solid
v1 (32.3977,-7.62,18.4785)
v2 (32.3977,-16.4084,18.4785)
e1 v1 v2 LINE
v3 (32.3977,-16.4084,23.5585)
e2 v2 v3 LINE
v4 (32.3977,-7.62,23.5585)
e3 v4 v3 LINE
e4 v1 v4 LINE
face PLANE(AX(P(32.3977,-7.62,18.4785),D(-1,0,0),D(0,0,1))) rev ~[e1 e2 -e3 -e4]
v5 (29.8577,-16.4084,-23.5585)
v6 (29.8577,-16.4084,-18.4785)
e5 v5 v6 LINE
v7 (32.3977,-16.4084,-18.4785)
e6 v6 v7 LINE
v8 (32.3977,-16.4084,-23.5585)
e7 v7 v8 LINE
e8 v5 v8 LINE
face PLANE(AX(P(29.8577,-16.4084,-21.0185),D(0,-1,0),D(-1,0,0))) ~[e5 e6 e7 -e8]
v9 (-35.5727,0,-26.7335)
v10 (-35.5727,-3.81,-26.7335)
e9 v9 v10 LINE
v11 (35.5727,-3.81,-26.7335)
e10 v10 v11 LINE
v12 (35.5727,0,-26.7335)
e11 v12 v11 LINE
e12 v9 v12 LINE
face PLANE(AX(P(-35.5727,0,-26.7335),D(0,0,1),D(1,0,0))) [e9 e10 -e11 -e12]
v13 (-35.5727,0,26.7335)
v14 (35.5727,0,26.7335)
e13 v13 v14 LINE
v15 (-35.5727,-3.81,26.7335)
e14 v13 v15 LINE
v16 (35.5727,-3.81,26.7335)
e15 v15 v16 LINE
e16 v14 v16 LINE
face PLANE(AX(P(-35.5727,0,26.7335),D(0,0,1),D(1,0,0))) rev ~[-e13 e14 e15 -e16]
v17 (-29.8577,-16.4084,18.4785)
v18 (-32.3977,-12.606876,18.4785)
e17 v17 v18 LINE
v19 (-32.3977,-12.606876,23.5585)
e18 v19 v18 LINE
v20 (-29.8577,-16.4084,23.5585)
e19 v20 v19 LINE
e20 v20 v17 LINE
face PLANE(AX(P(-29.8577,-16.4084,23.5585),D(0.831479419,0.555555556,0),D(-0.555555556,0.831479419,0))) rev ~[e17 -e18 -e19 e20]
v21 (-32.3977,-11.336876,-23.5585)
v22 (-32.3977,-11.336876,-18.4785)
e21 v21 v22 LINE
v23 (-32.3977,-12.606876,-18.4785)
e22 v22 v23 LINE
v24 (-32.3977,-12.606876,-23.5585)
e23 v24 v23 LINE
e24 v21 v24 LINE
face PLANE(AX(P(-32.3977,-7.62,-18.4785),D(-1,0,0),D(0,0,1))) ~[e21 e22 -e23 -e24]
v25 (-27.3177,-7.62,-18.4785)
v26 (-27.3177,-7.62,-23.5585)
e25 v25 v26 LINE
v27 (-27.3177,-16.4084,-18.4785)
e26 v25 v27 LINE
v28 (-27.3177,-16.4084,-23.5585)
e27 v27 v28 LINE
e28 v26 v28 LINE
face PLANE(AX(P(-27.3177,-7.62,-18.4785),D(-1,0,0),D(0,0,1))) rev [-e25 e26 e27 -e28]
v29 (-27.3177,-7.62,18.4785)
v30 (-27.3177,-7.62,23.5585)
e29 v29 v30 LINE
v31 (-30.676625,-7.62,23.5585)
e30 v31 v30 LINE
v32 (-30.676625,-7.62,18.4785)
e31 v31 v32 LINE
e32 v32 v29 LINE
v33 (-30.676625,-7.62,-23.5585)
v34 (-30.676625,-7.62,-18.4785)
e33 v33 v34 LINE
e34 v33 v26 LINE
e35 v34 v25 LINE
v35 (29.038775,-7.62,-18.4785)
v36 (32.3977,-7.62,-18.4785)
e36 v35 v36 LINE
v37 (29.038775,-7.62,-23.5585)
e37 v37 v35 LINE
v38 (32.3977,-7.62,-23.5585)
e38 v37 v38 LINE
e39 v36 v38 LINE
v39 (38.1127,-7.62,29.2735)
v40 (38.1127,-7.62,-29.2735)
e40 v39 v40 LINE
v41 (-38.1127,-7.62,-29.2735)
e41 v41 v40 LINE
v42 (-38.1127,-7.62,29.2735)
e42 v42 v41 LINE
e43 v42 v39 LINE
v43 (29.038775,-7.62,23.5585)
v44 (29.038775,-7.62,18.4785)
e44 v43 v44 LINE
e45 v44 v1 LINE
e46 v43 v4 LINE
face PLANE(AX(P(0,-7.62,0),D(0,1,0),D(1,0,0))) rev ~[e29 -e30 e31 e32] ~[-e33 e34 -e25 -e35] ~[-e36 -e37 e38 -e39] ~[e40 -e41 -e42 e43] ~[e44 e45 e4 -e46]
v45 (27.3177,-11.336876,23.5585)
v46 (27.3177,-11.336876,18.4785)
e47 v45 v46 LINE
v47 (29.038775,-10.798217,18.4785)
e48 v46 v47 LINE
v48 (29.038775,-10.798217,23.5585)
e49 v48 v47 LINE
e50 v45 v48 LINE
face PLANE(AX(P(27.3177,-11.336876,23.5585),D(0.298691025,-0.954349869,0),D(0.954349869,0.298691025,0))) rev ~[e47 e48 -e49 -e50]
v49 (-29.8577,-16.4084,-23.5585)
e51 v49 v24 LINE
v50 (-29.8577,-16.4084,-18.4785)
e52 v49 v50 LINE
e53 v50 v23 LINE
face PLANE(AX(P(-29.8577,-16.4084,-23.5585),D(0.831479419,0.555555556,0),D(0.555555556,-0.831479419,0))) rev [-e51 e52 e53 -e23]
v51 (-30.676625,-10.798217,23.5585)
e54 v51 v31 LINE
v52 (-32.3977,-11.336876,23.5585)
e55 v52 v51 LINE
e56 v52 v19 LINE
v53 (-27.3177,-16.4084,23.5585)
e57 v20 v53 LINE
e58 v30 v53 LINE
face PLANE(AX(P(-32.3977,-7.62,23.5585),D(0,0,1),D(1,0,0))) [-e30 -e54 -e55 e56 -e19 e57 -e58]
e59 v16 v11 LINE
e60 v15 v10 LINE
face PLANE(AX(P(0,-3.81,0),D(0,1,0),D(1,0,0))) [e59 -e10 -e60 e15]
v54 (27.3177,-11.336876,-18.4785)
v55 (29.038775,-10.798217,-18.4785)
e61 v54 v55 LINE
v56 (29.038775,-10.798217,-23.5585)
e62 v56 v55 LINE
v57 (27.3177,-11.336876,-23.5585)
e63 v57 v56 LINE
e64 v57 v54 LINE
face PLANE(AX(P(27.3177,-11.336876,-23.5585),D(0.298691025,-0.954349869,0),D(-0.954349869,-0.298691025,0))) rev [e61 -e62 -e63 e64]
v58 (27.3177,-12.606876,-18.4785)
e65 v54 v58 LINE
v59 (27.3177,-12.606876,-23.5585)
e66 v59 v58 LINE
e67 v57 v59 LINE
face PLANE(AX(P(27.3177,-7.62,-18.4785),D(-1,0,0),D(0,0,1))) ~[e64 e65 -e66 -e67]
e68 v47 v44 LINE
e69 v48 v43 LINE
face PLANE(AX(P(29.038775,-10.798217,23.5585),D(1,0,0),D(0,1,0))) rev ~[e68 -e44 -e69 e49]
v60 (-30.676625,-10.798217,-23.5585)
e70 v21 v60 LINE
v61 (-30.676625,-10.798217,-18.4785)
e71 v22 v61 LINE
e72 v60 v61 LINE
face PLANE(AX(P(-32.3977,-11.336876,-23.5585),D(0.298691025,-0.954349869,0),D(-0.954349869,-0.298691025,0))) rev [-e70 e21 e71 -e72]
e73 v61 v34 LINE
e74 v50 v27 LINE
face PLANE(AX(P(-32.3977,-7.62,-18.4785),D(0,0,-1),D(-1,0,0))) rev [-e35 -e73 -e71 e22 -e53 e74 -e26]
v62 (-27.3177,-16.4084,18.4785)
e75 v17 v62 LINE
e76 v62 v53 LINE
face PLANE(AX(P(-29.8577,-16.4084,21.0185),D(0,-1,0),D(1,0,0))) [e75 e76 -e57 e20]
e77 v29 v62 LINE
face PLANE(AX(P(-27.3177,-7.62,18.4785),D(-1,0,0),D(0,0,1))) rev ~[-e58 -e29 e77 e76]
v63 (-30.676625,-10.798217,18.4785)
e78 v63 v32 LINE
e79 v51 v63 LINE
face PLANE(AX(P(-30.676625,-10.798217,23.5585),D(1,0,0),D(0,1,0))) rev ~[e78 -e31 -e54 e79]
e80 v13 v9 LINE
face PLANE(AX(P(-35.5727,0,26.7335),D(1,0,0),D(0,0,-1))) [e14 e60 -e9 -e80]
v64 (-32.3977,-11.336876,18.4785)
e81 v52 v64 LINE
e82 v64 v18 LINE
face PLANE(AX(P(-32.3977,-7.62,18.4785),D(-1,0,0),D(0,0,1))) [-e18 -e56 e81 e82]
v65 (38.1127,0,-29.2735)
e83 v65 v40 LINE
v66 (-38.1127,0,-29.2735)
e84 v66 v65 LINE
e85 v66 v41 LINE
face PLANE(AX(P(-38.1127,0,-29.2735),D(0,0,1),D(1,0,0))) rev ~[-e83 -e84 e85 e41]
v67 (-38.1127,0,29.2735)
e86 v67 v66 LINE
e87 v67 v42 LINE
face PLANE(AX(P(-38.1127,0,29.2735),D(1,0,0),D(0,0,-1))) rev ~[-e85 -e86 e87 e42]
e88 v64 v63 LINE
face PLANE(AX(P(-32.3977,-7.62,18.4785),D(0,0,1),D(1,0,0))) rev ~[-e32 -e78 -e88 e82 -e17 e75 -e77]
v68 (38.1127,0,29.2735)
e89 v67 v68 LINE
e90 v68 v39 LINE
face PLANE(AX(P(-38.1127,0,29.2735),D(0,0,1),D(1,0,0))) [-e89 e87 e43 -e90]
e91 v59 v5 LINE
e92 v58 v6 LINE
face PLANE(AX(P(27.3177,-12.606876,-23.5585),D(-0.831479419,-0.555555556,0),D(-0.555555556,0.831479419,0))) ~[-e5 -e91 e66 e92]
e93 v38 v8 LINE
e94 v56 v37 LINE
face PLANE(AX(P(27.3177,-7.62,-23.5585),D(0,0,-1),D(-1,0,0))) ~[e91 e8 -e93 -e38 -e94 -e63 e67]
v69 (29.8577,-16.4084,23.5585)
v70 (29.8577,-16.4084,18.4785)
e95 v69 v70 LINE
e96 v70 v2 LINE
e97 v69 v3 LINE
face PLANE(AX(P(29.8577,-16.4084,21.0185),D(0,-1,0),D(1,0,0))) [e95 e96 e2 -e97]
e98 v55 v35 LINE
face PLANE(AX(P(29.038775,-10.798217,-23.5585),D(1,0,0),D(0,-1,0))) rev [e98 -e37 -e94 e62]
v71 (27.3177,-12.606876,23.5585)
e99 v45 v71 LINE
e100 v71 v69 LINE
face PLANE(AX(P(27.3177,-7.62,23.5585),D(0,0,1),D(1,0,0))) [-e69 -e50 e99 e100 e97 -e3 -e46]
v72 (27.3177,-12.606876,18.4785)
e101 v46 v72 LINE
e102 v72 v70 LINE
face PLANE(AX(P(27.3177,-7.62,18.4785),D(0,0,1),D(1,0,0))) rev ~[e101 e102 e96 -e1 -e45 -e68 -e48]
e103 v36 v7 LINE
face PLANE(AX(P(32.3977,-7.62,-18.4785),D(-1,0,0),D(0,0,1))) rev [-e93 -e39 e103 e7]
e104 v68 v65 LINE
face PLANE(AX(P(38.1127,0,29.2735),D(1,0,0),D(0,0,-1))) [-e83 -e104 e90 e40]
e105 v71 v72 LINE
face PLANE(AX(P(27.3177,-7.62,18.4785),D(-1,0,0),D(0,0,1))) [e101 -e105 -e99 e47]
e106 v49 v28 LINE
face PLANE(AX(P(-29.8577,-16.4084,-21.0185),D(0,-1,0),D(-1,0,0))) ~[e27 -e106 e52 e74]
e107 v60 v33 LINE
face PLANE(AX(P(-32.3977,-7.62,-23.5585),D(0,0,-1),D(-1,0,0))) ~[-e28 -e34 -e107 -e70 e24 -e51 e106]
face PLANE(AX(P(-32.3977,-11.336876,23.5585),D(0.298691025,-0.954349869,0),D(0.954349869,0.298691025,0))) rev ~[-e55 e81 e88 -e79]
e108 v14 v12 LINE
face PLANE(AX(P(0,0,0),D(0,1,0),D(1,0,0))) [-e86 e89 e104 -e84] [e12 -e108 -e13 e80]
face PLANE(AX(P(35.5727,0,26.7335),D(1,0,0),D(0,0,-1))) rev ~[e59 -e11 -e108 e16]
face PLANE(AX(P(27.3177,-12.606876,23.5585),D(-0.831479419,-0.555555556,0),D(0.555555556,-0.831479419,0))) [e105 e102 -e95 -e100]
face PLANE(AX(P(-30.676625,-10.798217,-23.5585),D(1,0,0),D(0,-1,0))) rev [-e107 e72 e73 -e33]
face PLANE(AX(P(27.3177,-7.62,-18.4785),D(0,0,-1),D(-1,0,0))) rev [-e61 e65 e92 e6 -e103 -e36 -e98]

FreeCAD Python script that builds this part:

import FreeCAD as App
import Part
import Sketcher
from FreeCAD import Vector
Q = App.Units.Quantity


def add_polygon(sketch, points):
    """Adds a closed chain of lines whose ends are joined by coincident constraints."""
    first, n = sketch.GeometryCount, len(points)
    for a, b in zip(points, points[1:] + points[:1]):
        sketch.addGeometry(Part.LineSegment(App.Vector(*a, 0), App.Vector(*b, 0)), False)
    for i in range(n):
        sketch.addConstraint(Sketcher.Constraint("Coincident", first + i, 2, first + (i + 1) % n, 1))

doc = App.newDocument("Part")
params = doc.addObject("Spreadsheet::Sheet", "Params")
for row, (alias, value) in enumerate([
    ("sketch1_width", "3.001 in"),
    ("sketch1_height", "2.305 in"),
    ("pad1_length", "0.3 in"),
    ("sketch2_width", "2.801 in"),
    ("sketch2_height", "2.105 in"),
    ("pocket1_length", "0.15 in"),
    ("sketch3_width", "0.2 in"),
    ("pad2_length", "0.346 in"),
    ("sketch4_width", "0.1 in"),
    ("sketch4_length", "0.18 in"),
    ("sketch4_length2", "0.071 in"),
    ("pocket2_length", "0.2 in"),
], start=1):
    params.set(f"A{row}", alias)
    params.set(f"B{row}", "=" + value)
    params.setAlias(f"B{row}", alias)

body = doc.addObject("PartDesign::Body", "Body")

# Sketch on XZ plane
sketch1 = body.newObject("Sketcher::SketchObject", "Sketch")
sketch1.AttachmentSupport = (doc.getObject("XZ_Plane"), [""])
sketch1.MapMode = "FlatFace"
add_polygon(sketch1, [(-38.1127, -29.2735), (-38.1127, 29.2735), (38.1127, 29.2735), (38.1127, -29.2735)])  # lines 0-3
sketch1.addConstraint([
    Sketcher.Constraint("Vertical", 0),
    Sketcher.Constraint("Horizontal", 1),
    Sketcher.Constraint("Vertical", 2),
    Sketcher.Constraint("Horizontal", 3),
    Sketcher.Constraint("Symmetric", 0, 2, 2, 2, -1, 1),
    Sketcher.Constraint("DistanceX", 1, 1, 1, 2, Q("3.001 in")),
    Sketcher.Constraint("DistanceY", 0, 1, 0, 2, Q("2.305 in")),
])
sketch1.setExpression("Constraints[9]", "Params.sketch1_width")
sketch1.setExpression("Constraints[10]", "Params.sketch1_height")
pad1 = body.newObject("PartDesign::Pad", "Pad")
pad1.Profile = sketch1
pad1.setExpression("Length", "Params.pad1_length")

# Sketch on XZ plane
sketch2 = body.newObject("Sketcher::SketchObject", "Sketch001")
sketch2.AttachmentSupport = (doc.getObject("XZ_Plane"), [""])
sketch2.MapMode = "FlatFace"
add_polygon(sketch2, [(-35.5727, -26.7335), (-35.5727, 26.7335), (35.5727, 26.7335), (35.5727, -26.7335)])  # lines 0-3
sketch2.addConstraint([
    Sketcher.Constraint("Vertical", 0),
    Sketcher.Constraint("Horizontal", 1),
    Sketcher.Constraint("Vertical", 2),
    Sketcher.Constraint("Horizontal", 3),
    Sketcher.Constraint("Symmetric", 0, 2, 2, 2, -1, 1),
    Sketcher.Constraint("DistanceX", 1, 1, 1, 2, Q("2.801 in")),
    Sketcher.Constraint("DistanceY", 0, 1, 0, 2, Q("2.105 in")),
])
sketch2.setExpression("Constraints[9]", "Params.sketch2_width")
sketch2.setExpression("Constraints[10]", "Params.sketch2_height")
pocket1 = body.newObject("PartDesign::Pocket", "Pocket")
pocket1.Profile = sketch2
pocket1.setExpression("Length", "Params.pocket1_length")
pocket1.Reversed = True

# Sketch on XZ plane
sketch3 = body.newObject("Sketcher::SketchObject", "Sketch002")
sketch3.AttachmentSupport = (doc.getObject("XZ_Plane"), [""])
sketch3.MapMode = "FlatFace"
sketch3.AttachmentOffset = App.Placement(Vector(0, 0, 0.3 * 25.4), App.Rotation())
add_polygon(sketch3, [(-32.3977, 23.5585), (-32.3977, 18.4785), (-27.3177, 18.4785), (-27.3177, 23.5585)])  # lines 0-3
add_polygon(sketch3, [(27.3177, 23.5585), (27.3177, 18.4785), (32.3977, 18.4785), (32.3977, 23.5585)])  # lines 4-7
sketch3.addConstraint([
    Sketcher.Constraint("Vertical", 0),
    Sketcher.Constraint("Horizontal", 1),
    Sketcher.Constraint("Vertical", 2),
    Sketcher.Constraint("Horizontal", 3),
    Sketcher.Constraint("Vertical", 4),
    Sketcher.Constraint("Horizontal", 5),
    Sketcher.Constraint("Vertical", 6),
    Sketcher.Constraint("Horizontal", 7),
    Sketcher.Constraint("Symmetric", 1, 2, 4, 2, -2),
    Sketcher.Constraint("Symmetric", 3, 2, 6, 2, -2),
    Sketcher.Constraint("Equal", 7, 0),
    Sketcher.Constraint("DistanceX", 1, 1, 1, 2, Q("0.2 in")),
    Sketcher.Constraint("DistanceX", 1, 2, 4, 2, Q("2.151 in")),
    Sketcher.Constraint("DistanceY", -1, 1, 0, 2, Q("0.7275 in")),
])
sketch3.setExpression("Constraints[19]", "Params.sketch3_width")
pad2 = body.newObject("PartDesign::Pad", "Pad001")
pad2.Profile = sketch3
pad2.setExpression("Length", "Params.pad2_length")

# Sketch on XY plane
sketch4 = body.newObject("Sketcher::SketchObject", "Sketch003")
sketch4.AttachmentSupport = (doc.getObject("XY_Plane"), [""])
sketch4.MapMode = "FlatFace"
sketch4.AttachmentOffset = App.Placement(Vector(0, 0, 0.9275 * 25.4), App.Rotation())
add_polygon(sketch4, [(27.3177, -16.4084), (29.8577, -16.4084), (27.3177, -12.606876)])  # lines 0-2
add_polygon(sketch4, [(-29.8577, -16.4084), (-32.3977, -12.606876), (-32.3977, -16.4084)])  # lines 3-5
add_polygon(sketch4, [(27.3177, -7.62), (27.3177, -11.336876), (29.038775, -10.798217), (29.038775, -7.62)])  # lines 6-9
add_polygon(sketch4, [(-32.3977, -11.336876), (-30.676625, -10.798217), (-30.676625, -7.62), (-32.3977, -7.62)])  # lines 10-13
sketch4.addConstraint([
    Sketcher.Constraint("Horizontal", 0),
    Sketcher.Constraint("Vertical", 2),
    Sketcher.Constraint("Vertical", 4),
    Sketcher.Constraint("Horizontal", 5),
    Sketcher.Constraint("Vertical", 6),
    Sketcher.Constraint("Vertical", 8),
    Sketcher.Constraint("Horizontal", 9),
    Sketcher.Constraint("Vertical", 11),
    Sketcher.Constraint("Horizontal", 12),
    Sketcher.Constraint("Vertical", 13),
    Sketcher.Constraint("Symmetric", 0, 2, 5, 2, -2),
    Sketcher.Constraint("Parallel", 1, 3),
    Sketcher.Constraint("Parallel", 7, 10),
    Sketcher.Constraint("Horizontal", 1, 2, 3, 2),
    Sketcher.Constraint("Horizontal", 7, 2, 10, 2),
    Sketcher.Constraint("Horizontal", 9, 2, 11, 2),
    Sketcher.Constraint("Horizontal", 6, 2, 13, 2),
    Sketcher.Constraint("Vertical", 2, 2, 6, 2),
    Sketcher.Constraint("Vertical", 4, 2, 12, 2),
    Sketcher.Constraint("DistanceX", 0, 1, 0, 2, Q("0.1 in")),
    Sketcher.Constraint("DistanceY", 8, 2, -1, 1, Q("0.3 in")),
    Sketcher.Constraint("Distance", 1, Q("0.18 in")),
    Sketcher.Constraint("DistanceY", 1, 2, 6, 2, Q("0.05 in")),
    Sketcher.Constraint("Distance", 7, Q("0.071 in")),
    Sketcher.Constraint("DistanceY", 0, 2, -1, 1, Q("0.646 in")),
    Sketcher.Constraint("DistanceX", 3, 2, 1, 2, Q("2.351 in")),
    Sketcher.Constraint("DistanceX", 9, 2, 9, 1, Q("1.721075 mm")),
])
sketch4.setExpression("Constraints[33]", "Params.sketch4_width")
sketch4.setExpression("Constraints[35]", "Params.sketch4_length")
sketch4.setExpression("Constraints[37]", "Params.sketch4_length2")
pocket2 = body.newObject("PartDesign::Pocket", "Pocket001")
pocket2.Profile = sketch4
pocket2.setExpression("Length", "Params.pocket2_length")
doc.recompute()

mirrored = body.newObject("PartDesign::Mirrored", "Mirrored")
mirrored.Originals = [pad2, pocket2]
mirrored.MirrorPlane = (doc.getObject("XY_Plane"), [""])
body.Tip = mirrored

doc.recompute()
